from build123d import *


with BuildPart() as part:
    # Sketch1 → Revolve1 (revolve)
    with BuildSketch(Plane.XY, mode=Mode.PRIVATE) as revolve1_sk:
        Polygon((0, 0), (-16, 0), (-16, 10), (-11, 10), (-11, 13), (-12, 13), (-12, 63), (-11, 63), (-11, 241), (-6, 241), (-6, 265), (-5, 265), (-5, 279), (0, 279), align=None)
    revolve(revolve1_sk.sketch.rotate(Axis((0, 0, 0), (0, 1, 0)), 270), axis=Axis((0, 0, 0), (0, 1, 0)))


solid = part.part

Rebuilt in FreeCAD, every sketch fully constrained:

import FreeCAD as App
import Part
import Sketcher
Q = App.Units.Quantity


def add_polygon(sketch, points):
    """Adds a closed chain of lines whose ends are joined by coincident constraints."""
    first, n = sketch.GeometryCount, len(points)
    for a, b in zip(points, points[1:] + points[:1]):
        sketch.addGeometry(Part.LineSegment(App.Vector(*a, 0), App.Vector(*b, 0)), False)
    for i in range(n):
        sketch.addConstraint(Sketcher.Constraint("Coincident", first + i, 2, first + (i + 1) % n, 1))

doc = App.newDocument("Part")
body = doc.addObject("PartDesign::Body", "Body")

# Sketch on XY plane
sketch1 = doc.addObject("Sketcher::SketchObject", "Sketch")
body.addObject(sketch1)
sketch1.AttachmentSupport = (doc.XY_Plane, [""])
sketch1.MapMode = "FlatFace"
add_polygon(sketch1, [(-16, 0), (0, 0), (0, 279), (-5, 279), (-5, 265), (-6, 265), (-6, 241), (-11, 241), (-11, 63), (-12, 63), (-12, 13), (-11, 13), (-11, 10), (-16, 10)])  # lines 0-13
sketch1.addConstraint([
    Sketcher.Constraint("Horizontal", 0),
    Sketcher.Constraint("Vertical", 1),
    Sketcher.Constraint("Horizontal", 2),
    Sketcher.Constraint("Vertical", 3),
    Sketcher.Constraint("Horizontal", 4),
    Sketcher.Constraint("Vertical", 5),
    Sketcher.Constraint("Horizontal", 6),
    Sketcher.Constraint("Vertical", 7),
    Sketcher.Constraint("Horizontal", 8),
    Sketcher.Constraint("Vertical", 9),
    Sketcher.Constraint("Horizontal", 10),
    Sketcher.Constraint("Vertical", 11),
    Sketcher.Constraint("Horizontal", 12),
    Sketcher.Constraint("Vertical", 13),
    Sketcher.Constraint("Coincident", 0, 2, -1, 1),
    Sketcher.Constraint("Vertical", 7, 2, 10, 2),
    Sketcher.Constraint("Equal", 2, 6),
    Sketcher.Constraint("Equal", 4, 8),
    Sketcher.Constraint("Equal", 6, 12),
    Sketcher.Constraint("DistanceX", 0, 1, 0, 2, Q("16 mm")),
    Sketcher.Constraint("DistanceX", 2, 2, 2, 1, Q("5 mm")),
    Sketcher.Constraint("DistanceY", 1, 1, 1, 2, Q("279 mm")),
    Sketcher.Constraint("DistanceY", 3, 2, 3, 1, Q("14 mm")),
    Sketcher.Constraint("DistanceY", 5, 2, 5, 1, Q("24 mm")),
    Sketcher.Constraint("DistanceY", 7, 2, 7, 1, Q("178 mm")),
    Sketcher.Constraint("DistanceY", 9, 2, 9, 1, Q("50 mm")),
    Sketcher.Constraint("DistanceY", 11, 2, 11, 1, Q("3 mm")),
])
revolution = doc.addObject("PartDesign::Revolution", "Revolution")
body.addObject(revolution)
revolution.Profile = sketch1
revolution.ReferenceAxis = (sketch1, ["V_Axis"])
revolution.Angle = 360

doc.recompute()
